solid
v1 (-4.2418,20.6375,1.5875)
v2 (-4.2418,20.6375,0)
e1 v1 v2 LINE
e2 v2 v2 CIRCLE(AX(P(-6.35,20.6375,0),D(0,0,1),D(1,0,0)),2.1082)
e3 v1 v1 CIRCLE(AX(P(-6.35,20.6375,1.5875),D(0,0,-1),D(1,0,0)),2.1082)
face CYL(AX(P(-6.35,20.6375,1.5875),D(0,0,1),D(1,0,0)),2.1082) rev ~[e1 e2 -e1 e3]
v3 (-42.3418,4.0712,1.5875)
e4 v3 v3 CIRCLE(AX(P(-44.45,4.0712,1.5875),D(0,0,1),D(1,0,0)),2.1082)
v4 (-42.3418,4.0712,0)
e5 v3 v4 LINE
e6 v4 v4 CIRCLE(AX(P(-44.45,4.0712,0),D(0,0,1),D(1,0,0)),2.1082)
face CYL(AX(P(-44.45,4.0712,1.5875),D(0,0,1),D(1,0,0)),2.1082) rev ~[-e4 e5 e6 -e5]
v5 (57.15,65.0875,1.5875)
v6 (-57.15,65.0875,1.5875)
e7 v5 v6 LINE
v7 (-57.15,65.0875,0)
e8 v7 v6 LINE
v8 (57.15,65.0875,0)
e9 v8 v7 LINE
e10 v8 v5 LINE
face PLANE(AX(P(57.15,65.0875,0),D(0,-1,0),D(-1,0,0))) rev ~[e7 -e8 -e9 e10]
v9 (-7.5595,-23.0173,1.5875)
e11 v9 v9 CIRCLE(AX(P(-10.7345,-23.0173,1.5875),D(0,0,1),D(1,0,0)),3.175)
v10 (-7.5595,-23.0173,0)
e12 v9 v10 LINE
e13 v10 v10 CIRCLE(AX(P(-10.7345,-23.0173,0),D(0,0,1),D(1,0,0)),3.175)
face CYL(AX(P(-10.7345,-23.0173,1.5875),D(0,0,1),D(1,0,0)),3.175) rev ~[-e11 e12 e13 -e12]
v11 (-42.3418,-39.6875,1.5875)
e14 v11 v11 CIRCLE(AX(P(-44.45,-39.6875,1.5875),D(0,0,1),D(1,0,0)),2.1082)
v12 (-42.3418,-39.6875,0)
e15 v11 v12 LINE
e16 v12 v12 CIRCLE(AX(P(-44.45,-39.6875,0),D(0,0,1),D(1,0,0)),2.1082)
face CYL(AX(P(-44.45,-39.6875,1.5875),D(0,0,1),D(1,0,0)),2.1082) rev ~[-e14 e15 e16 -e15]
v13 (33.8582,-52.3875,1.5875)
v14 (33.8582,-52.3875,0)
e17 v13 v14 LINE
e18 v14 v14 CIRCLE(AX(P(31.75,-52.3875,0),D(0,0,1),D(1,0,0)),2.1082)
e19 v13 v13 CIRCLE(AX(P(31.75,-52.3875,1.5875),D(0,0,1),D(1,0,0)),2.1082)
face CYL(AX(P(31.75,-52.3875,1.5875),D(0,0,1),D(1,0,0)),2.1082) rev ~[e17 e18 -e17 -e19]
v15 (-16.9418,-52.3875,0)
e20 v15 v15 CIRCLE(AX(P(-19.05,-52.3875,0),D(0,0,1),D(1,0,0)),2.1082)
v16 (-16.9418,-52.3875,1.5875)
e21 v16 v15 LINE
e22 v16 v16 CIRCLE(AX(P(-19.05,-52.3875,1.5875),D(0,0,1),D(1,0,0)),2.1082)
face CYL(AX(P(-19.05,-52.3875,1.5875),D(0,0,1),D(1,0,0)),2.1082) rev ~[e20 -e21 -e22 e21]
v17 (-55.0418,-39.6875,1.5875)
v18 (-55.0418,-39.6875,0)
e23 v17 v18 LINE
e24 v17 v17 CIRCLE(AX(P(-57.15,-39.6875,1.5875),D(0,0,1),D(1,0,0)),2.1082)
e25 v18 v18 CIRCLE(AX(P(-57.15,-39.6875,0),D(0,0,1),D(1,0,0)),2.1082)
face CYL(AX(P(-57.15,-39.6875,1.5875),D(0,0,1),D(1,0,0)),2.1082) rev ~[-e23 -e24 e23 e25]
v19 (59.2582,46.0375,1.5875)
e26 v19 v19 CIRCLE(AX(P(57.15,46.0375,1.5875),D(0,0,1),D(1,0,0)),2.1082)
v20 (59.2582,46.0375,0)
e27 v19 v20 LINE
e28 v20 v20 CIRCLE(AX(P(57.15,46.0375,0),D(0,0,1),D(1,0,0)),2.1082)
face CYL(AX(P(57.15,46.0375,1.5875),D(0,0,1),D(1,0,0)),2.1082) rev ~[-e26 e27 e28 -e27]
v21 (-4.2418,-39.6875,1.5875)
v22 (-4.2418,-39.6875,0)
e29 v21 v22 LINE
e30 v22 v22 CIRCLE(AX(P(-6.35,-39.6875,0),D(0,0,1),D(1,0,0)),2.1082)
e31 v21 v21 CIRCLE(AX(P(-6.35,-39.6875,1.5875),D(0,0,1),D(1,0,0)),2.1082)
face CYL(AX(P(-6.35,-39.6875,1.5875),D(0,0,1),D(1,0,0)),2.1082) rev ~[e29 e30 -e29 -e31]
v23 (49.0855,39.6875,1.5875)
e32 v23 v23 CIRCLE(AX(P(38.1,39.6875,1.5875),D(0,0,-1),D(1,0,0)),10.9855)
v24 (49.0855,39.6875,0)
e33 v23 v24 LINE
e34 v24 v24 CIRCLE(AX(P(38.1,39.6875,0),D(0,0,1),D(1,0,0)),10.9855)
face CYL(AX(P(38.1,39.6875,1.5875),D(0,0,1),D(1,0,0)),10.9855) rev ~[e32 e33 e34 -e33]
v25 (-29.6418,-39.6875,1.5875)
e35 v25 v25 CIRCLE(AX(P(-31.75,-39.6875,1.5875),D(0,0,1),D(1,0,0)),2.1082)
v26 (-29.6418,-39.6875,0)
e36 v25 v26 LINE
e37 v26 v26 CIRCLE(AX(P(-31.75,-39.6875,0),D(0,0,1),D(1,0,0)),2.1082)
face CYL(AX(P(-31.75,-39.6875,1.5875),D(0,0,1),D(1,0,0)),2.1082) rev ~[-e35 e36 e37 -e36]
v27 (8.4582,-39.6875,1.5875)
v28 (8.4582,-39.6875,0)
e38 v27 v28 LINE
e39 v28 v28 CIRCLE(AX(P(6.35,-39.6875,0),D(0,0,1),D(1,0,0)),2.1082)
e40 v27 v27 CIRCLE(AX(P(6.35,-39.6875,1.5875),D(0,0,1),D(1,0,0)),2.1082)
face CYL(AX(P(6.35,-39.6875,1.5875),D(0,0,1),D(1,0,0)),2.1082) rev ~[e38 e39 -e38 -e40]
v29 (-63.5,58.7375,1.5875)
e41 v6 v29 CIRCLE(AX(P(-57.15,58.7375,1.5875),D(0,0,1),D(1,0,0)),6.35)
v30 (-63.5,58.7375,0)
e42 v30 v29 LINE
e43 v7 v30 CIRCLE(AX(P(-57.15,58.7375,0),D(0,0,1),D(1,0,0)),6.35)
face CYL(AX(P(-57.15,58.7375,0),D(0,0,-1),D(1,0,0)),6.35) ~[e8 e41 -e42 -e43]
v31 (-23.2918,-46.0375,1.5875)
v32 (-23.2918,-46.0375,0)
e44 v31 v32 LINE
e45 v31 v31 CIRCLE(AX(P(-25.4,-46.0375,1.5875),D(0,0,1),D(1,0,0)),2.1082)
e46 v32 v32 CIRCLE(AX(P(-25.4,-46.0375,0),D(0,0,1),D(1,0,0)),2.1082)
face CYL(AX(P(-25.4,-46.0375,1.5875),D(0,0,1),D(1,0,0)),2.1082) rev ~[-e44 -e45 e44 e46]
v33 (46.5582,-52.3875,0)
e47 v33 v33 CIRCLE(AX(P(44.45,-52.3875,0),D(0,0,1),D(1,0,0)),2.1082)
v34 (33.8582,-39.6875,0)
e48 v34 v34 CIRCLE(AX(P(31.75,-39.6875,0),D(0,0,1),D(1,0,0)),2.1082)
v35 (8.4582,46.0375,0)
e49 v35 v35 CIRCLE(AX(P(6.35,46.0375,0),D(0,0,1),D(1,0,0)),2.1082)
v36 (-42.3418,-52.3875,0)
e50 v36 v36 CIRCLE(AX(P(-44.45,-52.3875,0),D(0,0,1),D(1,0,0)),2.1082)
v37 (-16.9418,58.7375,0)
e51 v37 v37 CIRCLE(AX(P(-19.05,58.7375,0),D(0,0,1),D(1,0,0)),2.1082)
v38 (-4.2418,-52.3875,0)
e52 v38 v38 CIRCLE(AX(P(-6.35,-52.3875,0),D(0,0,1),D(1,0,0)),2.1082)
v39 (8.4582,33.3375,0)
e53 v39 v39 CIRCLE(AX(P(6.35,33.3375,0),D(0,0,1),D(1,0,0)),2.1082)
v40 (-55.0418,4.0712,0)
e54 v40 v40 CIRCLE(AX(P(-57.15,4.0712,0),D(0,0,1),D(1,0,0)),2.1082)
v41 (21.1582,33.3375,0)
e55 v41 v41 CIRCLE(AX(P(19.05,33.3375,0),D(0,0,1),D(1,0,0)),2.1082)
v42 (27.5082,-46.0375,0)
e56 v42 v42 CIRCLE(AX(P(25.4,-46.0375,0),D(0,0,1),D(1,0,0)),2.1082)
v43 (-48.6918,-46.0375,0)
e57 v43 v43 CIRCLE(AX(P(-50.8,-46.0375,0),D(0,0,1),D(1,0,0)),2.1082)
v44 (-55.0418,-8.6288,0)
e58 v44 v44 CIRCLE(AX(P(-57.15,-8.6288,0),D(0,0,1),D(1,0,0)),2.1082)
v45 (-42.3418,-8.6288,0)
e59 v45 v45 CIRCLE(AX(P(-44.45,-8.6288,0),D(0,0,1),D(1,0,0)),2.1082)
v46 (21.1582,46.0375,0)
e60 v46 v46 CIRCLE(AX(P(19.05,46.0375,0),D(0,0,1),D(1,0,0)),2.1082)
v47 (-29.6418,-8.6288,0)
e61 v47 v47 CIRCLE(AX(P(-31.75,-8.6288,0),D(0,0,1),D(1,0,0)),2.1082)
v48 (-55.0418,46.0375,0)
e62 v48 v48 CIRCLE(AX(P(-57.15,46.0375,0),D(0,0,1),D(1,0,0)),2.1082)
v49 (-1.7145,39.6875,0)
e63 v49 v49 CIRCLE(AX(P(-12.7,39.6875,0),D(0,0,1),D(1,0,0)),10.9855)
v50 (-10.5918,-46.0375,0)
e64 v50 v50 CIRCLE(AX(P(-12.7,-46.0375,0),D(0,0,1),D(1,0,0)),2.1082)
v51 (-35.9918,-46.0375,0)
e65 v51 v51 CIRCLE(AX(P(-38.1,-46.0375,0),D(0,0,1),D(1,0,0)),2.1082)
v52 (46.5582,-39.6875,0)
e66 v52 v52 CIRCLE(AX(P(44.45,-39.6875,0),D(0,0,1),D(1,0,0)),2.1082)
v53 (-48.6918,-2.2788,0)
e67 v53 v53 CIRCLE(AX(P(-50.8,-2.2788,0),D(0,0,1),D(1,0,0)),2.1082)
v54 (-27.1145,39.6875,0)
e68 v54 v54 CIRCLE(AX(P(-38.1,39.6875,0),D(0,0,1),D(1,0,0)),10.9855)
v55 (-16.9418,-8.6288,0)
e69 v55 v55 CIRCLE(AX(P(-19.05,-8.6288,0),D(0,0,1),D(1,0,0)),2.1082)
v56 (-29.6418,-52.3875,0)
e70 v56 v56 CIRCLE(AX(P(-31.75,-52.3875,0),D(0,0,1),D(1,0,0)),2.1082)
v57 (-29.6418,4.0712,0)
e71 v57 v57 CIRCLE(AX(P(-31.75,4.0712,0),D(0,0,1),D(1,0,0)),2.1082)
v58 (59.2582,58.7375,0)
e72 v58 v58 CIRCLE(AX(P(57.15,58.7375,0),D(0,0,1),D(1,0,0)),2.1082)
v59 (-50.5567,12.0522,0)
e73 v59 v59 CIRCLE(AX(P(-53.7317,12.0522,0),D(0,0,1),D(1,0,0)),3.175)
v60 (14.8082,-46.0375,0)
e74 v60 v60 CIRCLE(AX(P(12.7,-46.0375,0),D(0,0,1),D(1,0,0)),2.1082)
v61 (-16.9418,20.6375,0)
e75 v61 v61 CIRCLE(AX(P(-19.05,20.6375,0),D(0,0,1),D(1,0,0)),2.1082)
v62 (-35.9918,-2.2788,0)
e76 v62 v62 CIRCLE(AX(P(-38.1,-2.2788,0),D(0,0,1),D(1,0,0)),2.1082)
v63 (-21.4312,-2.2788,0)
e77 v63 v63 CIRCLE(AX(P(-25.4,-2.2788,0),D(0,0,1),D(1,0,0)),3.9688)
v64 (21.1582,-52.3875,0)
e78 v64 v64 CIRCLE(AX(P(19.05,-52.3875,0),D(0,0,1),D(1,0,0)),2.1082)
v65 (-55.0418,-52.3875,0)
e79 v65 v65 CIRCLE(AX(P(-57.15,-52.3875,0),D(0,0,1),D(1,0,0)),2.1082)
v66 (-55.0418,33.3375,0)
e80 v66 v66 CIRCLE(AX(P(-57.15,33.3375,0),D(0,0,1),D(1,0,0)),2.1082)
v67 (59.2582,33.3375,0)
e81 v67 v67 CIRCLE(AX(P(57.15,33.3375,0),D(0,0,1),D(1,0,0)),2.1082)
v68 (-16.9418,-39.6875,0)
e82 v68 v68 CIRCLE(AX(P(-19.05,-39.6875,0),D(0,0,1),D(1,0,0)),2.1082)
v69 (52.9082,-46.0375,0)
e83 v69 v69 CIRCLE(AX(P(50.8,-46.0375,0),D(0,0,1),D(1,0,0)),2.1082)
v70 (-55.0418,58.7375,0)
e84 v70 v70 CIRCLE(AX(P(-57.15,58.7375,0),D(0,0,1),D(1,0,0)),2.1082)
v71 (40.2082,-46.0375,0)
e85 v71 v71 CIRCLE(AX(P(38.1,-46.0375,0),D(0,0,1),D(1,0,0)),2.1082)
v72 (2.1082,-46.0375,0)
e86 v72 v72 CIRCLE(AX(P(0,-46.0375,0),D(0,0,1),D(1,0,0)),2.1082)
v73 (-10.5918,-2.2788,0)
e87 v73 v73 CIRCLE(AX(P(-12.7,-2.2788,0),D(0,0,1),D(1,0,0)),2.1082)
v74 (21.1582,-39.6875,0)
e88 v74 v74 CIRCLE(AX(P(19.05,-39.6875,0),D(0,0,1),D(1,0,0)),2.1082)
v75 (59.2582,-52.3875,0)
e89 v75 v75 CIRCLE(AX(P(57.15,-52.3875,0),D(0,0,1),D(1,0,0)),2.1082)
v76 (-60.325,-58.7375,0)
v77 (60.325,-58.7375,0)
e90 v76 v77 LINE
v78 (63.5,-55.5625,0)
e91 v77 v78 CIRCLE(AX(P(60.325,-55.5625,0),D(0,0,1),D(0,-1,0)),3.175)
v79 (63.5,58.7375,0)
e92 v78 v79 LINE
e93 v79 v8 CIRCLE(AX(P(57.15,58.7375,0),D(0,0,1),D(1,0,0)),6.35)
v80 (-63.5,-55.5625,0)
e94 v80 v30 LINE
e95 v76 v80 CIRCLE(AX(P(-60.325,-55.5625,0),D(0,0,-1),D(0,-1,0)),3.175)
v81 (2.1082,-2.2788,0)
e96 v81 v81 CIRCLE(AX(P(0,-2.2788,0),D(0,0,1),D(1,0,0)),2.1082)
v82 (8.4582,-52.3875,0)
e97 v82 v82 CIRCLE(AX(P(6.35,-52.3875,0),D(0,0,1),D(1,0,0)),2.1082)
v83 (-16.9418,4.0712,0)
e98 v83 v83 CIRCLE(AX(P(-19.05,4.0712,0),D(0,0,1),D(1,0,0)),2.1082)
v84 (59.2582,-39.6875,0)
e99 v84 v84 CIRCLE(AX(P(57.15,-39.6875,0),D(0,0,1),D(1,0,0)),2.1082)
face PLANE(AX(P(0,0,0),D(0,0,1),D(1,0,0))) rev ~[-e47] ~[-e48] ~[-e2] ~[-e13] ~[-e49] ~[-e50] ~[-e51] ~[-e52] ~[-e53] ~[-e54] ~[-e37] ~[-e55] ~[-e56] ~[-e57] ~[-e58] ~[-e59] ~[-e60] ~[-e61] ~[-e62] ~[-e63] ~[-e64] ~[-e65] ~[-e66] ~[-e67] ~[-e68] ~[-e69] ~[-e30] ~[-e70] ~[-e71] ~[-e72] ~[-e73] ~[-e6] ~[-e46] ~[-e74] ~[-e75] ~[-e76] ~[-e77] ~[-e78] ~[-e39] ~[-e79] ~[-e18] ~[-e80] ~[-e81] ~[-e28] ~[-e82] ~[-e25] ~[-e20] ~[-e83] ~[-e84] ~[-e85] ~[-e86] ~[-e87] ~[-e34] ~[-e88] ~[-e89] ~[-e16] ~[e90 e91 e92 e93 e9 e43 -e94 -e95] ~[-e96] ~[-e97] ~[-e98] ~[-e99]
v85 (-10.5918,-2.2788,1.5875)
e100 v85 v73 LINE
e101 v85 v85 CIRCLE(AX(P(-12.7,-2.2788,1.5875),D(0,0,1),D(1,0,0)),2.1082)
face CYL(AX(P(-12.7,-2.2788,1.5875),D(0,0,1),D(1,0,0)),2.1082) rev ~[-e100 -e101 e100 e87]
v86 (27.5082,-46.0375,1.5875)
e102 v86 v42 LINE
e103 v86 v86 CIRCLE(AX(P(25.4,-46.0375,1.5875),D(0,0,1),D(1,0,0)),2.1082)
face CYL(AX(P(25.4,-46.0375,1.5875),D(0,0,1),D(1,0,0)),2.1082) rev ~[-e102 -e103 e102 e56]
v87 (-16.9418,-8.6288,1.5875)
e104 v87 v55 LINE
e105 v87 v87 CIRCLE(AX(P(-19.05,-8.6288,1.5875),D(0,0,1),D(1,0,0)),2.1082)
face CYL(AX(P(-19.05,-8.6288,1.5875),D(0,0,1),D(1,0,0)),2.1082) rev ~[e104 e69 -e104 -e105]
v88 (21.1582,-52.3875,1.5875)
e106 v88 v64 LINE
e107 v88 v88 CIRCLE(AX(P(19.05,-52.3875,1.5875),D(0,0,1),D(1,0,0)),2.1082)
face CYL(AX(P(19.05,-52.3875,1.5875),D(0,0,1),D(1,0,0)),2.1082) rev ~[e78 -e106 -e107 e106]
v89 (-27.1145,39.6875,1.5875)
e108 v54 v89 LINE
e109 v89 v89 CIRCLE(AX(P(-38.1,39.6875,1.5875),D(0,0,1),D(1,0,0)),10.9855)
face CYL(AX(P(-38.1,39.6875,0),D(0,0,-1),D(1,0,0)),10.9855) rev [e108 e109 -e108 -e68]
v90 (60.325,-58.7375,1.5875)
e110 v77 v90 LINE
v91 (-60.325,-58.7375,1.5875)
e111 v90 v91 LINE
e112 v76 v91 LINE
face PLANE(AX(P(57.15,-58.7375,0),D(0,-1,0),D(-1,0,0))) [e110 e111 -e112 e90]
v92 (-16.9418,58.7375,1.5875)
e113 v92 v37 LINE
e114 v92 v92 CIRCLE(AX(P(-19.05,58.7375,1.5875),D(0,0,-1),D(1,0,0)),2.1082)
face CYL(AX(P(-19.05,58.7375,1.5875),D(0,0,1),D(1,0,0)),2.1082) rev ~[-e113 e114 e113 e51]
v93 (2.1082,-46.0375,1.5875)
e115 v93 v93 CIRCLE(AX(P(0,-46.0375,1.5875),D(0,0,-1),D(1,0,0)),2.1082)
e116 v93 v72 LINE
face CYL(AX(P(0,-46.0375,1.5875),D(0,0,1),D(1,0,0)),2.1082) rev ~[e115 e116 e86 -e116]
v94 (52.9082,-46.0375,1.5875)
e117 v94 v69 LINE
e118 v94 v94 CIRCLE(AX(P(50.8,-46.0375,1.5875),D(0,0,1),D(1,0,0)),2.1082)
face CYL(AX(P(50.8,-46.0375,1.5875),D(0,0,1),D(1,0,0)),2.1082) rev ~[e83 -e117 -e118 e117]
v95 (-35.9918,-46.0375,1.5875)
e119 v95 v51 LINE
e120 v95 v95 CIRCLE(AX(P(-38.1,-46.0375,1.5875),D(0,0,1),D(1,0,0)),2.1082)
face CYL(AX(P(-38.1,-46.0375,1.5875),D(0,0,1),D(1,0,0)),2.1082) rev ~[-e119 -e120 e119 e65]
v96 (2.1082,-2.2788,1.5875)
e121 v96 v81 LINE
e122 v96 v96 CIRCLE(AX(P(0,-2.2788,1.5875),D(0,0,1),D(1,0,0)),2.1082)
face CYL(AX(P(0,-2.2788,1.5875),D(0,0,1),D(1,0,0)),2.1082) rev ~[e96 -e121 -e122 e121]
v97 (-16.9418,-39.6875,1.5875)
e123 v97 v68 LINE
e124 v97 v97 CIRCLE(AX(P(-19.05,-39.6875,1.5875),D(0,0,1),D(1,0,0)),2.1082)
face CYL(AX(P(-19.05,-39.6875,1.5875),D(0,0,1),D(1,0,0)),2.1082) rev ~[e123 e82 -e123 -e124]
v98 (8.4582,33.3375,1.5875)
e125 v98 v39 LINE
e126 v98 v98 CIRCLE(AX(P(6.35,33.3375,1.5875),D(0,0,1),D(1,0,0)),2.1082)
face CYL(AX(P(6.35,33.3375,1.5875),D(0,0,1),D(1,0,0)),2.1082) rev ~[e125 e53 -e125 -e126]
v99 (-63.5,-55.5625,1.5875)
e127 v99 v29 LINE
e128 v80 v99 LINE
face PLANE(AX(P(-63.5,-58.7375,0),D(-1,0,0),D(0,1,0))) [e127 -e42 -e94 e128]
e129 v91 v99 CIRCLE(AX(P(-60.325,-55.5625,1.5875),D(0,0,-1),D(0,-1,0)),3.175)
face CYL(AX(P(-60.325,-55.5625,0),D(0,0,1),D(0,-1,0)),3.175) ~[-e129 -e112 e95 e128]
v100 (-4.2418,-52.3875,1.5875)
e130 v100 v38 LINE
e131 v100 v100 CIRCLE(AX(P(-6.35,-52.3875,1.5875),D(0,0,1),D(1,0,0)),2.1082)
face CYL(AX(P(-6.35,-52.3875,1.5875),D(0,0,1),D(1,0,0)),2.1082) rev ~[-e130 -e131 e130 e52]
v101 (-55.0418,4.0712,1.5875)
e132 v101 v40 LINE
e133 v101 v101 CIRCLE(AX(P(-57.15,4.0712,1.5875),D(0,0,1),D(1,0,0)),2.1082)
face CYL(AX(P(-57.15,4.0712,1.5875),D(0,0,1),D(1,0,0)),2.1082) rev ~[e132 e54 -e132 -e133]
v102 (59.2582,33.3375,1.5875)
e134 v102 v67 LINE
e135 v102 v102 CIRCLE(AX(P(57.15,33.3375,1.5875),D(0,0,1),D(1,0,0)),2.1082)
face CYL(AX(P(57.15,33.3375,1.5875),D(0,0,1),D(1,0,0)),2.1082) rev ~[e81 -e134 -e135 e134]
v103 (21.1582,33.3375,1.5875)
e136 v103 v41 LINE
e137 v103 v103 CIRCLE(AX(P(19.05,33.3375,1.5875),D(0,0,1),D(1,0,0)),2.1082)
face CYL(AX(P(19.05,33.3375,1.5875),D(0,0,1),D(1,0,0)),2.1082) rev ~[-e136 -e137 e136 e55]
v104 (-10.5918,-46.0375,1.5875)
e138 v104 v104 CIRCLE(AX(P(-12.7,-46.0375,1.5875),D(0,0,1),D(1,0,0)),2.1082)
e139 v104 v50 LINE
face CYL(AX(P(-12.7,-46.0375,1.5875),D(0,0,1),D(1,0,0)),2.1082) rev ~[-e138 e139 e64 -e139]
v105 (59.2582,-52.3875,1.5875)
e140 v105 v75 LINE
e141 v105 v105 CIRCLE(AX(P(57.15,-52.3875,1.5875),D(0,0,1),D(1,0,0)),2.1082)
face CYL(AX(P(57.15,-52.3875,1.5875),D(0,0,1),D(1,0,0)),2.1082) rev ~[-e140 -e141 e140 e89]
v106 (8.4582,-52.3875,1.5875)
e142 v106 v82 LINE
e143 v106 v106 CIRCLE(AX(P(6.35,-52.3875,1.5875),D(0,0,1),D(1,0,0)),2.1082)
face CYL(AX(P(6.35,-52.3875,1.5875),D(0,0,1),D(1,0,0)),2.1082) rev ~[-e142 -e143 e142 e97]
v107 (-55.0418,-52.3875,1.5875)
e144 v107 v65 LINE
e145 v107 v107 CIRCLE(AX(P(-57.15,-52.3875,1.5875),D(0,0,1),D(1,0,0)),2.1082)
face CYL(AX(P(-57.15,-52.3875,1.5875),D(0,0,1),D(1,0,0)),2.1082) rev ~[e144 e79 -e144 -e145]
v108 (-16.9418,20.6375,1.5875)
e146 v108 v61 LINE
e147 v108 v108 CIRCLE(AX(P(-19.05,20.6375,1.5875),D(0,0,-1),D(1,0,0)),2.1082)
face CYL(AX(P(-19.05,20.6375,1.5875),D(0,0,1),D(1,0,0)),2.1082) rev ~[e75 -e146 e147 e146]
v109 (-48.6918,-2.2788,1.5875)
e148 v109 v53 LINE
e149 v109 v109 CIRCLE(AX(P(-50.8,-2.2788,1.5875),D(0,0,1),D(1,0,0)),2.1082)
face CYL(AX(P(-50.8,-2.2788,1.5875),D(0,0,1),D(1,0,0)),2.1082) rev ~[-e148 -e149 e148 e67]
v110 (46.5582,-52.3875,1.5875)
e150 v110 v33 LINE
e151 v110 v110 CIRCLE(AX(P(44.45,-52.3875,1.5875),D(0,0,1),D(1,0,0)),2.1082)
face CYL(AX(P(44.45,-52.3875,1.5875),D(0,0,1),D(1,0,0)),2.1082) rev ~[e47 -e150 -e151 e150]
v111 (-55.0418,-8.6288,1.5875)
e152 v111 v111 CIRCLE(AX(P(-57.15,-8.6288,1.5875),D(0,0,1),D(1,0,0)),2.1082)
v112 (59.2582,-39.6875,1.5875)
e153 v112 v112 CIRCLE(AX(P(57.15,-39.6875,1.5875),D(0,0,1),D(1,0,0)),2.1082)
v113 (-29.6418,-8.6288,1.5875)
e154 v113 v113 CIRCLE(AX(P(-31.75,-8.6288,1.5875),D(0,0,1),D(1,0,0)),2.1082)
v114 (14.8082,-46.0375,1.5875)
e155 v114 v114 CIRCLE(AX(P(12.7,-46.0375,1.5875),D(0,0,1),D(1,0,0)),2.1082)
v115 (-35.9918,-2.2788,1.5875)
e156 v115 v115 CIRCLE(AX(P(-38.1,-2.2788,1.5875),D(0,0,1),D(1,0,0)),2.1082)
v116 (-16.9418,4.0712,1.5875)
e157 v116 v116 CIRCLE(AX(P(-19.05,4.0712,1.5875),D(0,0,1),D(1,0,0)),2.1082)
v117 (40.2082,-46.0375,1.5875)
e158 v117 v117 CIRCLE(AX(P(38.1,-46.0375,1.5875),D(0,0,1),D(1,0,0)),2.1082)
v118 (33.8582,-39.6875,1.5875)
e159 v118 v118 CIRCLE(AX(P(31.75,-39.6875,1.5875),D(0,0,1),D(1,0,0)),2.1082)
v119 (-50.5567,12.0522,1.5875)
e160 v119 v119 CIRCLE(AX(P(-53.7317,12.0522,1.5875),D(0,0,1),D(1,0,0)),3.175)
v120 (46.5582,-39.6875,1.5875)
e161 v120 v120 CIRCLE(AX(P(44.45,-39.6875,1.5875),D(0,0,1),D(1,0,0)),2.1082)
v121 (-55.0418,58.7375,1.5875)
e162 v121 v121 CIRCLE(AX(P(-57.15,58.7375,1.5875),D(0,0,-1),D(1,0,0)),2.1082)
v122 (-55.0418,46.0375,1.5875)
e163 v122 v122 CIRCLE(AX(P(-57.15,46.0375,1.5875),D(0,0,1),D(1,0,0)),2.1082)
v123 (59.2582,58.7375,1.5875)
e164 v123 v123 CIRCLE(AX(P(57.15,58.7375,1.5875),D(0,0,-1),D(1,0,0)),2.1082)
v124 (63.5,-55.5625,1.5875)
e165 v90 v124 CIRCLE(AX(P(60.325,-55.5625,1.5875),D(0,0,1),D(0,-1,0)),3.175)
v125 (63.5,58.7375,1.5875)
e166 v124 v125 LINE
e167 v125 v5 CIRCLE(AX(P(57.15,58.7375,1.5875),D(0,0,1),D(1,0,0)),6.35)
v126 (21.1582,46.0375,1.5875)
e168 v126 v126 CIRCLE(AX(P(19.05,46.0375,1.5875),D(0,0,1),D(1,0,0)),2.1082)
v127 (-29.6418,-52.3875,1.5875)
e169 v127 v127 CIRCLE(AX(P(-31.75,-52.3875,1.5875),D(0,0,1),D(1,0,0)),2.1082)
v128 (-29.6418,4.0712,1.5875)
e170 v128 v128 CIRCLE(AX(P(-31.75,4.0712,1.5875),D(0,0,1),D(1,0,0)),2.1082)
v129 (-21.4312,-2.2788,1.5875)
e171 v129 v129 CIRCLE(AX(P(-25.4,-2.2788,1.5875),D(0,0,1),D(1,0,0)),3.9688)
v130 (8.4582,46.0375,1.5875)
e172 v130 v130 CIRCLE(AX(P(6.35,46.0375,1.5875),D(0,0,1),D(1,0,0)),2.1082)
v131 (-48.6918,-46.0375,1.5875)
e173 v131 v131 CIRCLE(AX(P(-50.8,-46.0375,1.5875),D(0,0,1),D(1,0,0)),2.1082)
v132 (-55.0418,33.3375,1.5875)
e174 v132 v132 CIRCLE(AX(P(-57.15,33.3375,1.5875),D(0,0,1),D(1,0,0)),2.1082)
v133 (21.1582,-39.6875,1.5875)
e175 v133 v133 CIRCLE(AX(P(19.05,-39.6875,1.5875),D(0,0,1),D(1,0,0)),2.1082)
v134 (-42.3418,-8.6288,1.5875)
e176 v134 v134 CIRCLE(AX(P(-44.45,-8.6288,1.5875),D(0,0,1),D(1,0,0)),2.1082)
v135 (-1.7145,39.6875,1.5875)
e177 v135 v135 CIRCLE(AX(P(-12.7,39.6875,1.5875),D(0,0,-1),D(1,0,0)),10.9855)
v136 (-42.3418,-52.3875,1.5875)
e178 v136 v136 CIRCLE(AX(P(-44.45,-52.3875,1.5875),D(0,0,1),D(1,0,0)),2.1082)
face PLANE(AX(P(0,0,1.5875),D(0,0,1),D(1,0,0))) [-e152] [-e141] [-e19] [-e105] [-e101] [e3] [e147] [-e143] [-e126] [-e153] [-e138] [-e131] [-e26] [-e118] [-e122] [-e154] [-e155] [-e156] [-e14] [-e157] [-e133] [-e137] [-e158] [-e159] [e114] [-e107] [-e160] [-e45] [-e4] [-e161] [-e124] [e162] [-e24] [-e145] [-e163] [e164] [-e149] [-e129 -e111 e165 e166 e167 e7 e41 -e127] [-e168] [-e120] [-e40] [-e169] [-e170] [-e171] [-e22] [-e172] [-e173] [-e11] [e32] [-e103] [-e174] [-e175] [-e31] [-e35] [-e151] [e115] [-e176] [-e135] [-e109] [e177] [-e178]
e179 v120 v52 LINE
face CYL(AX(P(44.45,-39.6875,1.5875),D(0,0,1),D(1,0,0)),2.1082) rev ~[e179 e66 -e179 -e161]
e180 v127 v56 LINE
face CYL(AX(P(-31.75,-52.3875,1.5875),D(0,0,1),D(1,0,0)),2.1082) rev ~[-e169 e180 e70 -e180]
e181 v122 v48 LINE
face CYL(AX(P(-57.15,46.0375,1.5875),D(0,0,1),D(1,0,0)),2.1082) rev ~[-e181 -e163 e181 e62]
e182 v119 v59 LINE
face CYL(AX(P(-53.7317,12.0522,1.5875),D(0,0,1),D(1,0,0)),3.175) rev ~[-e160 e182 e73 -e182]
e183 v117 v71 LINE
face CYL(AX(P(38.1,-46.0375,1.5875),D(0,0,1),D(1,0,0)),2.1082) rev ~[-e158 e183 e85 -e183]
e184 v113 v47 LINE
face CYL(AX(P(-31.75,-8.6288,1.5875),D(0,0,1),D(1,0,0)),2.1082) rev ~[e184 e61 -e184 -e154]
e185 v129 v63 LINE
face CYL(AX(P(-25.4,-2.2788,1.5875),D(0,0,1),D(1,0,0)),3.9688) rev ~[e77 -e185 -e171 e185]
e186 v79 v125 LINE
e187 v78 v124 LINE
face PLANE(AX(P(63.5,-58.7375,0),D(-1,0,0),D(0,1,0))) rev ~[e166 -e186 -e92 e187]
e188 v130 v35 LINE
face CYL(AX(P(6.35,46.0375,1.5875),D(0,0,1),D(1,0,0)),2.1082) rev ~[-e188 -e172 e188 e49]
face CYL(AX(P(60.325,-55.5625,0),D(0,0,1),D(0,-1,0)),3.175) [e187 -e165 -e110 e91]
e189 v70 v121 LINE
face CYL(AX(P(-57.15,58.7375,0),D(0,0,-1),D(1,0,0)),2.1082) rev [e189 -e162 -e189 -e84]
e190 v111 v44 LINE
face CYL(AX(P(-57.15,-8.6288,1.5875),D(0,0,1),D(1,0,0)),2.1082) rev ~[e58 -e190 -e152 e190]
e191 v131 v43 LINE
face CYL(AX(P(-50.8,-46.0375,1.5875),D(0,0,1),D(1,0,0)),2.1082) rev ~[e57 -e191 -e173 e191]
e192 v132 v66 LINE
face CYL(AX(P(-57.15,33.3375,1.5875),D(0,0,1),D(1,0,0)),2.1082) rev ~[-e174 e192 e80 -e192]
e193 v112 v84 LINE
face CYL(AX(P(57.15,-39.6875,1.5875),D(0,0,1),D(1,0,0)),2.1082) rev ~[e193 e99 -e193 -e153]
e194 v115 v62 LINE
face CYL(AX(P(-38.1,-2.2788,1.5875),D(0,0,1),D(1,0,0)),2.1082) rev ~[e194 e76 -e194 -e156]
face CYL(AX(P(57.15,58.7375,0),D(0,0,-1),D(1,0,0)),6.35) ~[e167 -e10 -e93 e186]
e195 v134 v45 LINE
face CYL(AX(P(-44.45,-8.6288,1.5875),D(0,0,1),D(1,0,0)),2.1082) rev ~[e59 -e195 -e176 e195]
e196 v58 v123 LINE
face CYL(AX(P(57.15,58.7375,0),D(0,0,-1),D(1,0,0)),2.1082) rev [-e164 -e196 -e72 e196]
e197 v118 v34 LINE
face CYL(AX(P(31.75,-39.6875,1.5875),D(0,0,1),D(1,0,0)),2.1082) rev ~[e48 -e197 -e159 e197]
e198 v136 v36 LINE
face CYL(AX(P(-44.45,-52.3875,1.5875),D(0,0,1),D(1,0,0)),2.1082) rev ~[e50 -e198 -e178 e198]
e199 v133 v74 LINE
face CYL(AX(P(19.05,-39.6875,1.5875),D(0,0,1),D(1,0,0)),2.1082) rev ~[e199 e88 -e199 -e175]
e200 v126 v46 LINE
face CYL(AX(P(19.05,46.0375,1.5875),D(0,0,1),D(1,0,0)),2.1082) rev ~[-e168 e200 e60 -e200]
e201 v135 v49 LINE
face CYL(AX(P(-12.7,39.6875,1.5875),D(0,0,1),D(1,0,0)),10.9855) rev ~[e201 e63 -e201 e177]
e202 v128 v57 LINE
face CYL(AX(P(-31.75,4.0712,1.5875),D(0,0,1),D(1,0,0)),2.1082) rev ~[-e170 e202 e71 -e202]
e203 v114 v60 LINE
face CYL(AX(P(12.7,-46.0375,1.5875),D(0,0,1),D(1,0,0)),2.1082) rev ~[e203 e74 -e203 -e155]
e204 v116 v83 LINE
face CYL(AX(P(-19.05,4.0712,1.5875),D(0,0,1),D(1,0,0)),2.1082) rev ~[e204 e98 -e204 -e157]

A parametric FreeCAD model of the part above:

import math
import FreeCAD as App
import Part
import Sketcher
from FreeCAD import Vector
Q = App.Units.Quantity


def edges_at(feature, points):
    """Names of the edges that pass closest to the given points."""
    edges = feature.Shape.Edges
    near = lambda p: min(range(len(edges)), key=lambda i: edges[i].distToShape(Part.Vertex(*p))[0])
    return sorted({f"Edge{near(p) + 1}" for p in points})

doc = App.newDocument("Part")
body = doc.addObject("PartDesign::Body", "Body")

sketch1 = doc.addObject("Sketcher::SketchObject", "Sketch")
body.addObject(sketch1)
sketch1.AttachmentSupport = (doc.XY_Plane, [""])
sketch1.MapMode = "FlatFace"
sketch1.addGeometry(Part.LineSegment(Vector(63.5, -58.7375, 0), Vector(63.5, 58.7375, 0)), False)
sketch1.addGeometry(Part.ArcOfCircle(Part.Circle(Vector(57.15, 58.7375, 0), Vector(0, 0, 1), 6.35), math.radians(0), math.radians(90)), False)
sketch1.addGeometry(Part.LineSegment(Vector(57.15, 65.0875, 0), Vector(-57.15, 65.0875, 0)), False)
sketch1.addGeometry(Part.ArcOfCircle(Part.Circle(Vector(-57.15, 58.7375, 0), Vector(0, 0, 1), 6.35), math.radians(90), math.radians(180)), False)
sketch1.addGeometry(Part.LineSegment(Vector(-63.5, 58.7375, 0), Vector(-63.5, -58.7375, 0)), False)
sketch1.addGeometry(Part.LineSegment(Vector(-63.5, -58.7375, 0), Vector(63.5, -58.7375, 0)), False)
sketch1.addGeometry(Part.Circle(Vector(57.15, 58.7375, 0), Vector(0, 0, 1), 2.1082), False)
sketch1.addGeometry(Part.Circle(Vector(-57.15, 58.7375, 0), Vector(0, 0, 1), 2.1082), False)
sketch1.addGeometry(Part.Circle(Vector(-38.1, 39.6875, 0), Vector(0, 0, 1), 10.9855), False)
sketch1.addConstraint(Sketcher.Constraint("Tangent", 0, 2, 1, 1))
sketch1.addConstraint(Sketcher.Constraint("Tangent", 1, 2, 2, 1))
sketch1.addConstraint(Sketcher.Constraint("Tangent", 2, 2, 3, 1))
sketch1.addConstraint(Sketcher.Constraint("Tangent", 3, 2, 4, 1))
sketch1.addConstraint(Sketcher.Constraint("Coincident", 4, 2, 5, 1))
sketch1.addConstraint(Sketcher.Constraint("Coincident", 5, 2, 0, 1))
sketch1.addConstraint(Sketcher.Constraint("Vertical", 0))
sketch1.addConstraint(Sketcher.Constraint("Horizontal", 2))
sketch1.addConstraint(Sketcher.Constraint("Vertical", 4))
sketch1.addConstraint(Sketcher.Constraint("Horizontal", 5))
sketch1.addConstraint(Sketcher.Constraint("Coincident", 6, 3, 1, 3))
sketch1.addConstraint(Sketcher.Constraint("Coincident", 7, 3, 3, 3))
sketch1.addConstraint(Sketcher.Constraint("Equal", 1, 3))
sketch1.addConstraint(Sketcher.Constraint("Equal", 6, 7))
sketch1.addConstraint(Sketcher.Constraint("Symmetric", 0, 2, 4, 2, -1, 1))
sketch1.addConstraint(Sketcher.Constraint("Radius", 1, Q("0.25 in")))
sketch1.addConstraint(Sketcher.Constraint("Diameter", 6, Q("0.166 in")))
sketch1.addConstraint(Sketcher.Constraint("Diameter", 8, Q("0.865 in")))
sketch1.addConstraint(Sketcher.Constraint("DistanceX", 2, 2, 2, 1, Q("4.5 in")))
sketch1.addConstraint(Sketcher.Constraint("DistanceX", 8, 3, -1, 1, Q("1.5 in")))
sketch1.addConstraint(Sketcher.Constraint("DistanceY", 0, 1, 0, 2, Q("4.625 in")))
sketch1.addConstraint(Sketcher.Constraint("DistanceY", 8, 3, 1, 2, Q("1 in")))
pad1 = doc.addObject("PartDesign::Pad", "Pad")
body.addObject(pad1)
pad1.Profile = sketch1
pad1.Length = Q("0.0625 in")

sketch2 = doc.addObject("Sketcher::SketchObject", "Sketch001")
body.addObject(sketch2)
sketch2.AttachmentSupport = (doc.XY_Plane, [""])
sketch2.MapMode = "FlatFace"
sketch2.AttachmentOffset = App.Placement(Vector(0, 0, 0.0625 * 25.4), App.Rotation())
sketch2.addGeometry(Part.Circle(Vector(-12.7, 39.6875, 0), Vector(0, 0, 1), 10.9855), False)
sketch2.addGeometry(Part.Circle(Vector(38.1, 39.6875, 0), Vector(0, 0, 1), 10.9855), False)
sketch2.addGeometry(Part.Circle(Vector(0, -46.0375, 0), Vector(0, 0, 1), 2.1082), False)
sketch2.addConstraint(Sketcher.Constraint("Equal", 0, 1))
sketch2.addConstraint(Sketcher.Constraint("PointOnObject", 2, 3, -2))
sketch2.addConstraint(Sketcher.Constraint("Horizontal", 0, 3, 1, 3))
sketch2.addConstraint(Sketcher.Constraint("Diameter", 0, Q("0.865 in")))
sketch2.addConstraint(Sketcher.Constraint("Diameter", 2, Q("0.166 in")))
sketch2.addConstraint(Sketcher.Constraint("DistanceX", 0, 3, -1, 1, Q("0.5 in")))
sketch2.addConstraint(Sketcher.Constraint("DistanceX", -1, 1, 1, 3, Q("1.5 in")))
sketch2.addConstraint(Sketcher.Constraint("DistanceY", -1, 1, 0, 3, Q("1.5625 in")))
sketch2.addConstraint(Sketcher.Constraint("DistanceY", 2, 3, -1, 1, Q("1.8125 in")))
pocket1 = doc.addObject("PartDesign::Pocket", "Pocket")
body.addObject(pocket1)
pocket1.Profile = sketch2
pocket1.Length = Q("0.0625 in")

sketch3 = doc.addObject("Sketcher::SketchObject", "Sketch002")
body.addObject(sketch3)
sketch3.AttachmentSupport = (doc.XY_Plane, [""])
sketch3.MapMode = "FlatFace"
sketch3.AttachmentOffset = App.Placement(Vector(0, 0, 0.0625 * 25.4), App.Rotation())
sketch3.addGeometry(Part.Circle(Vector(-53.7317, 12.0522, 0), Vector(0, 0, 1), 3.175), False)
sketch3.addGeometry(Part.Circle(Vector(-25.4, -2.2788, 0), Vector(0, 0, 1), 3.9688), False)
sketch3.addGeometry(Part.Circle(Vector(-10.7345, -23.0173, 0), Vector(0, 0, 1), 3.175), False)
sketch3.addConstraint(Sketcher.Constraint("Equal", 0, 2))
sketch3.addConstraint(Sketcher.Constraint("Diameter", 0, Q("0.25 in")))
sketch3.addConstraint(Sketcher.Constraint("Diameter", 1, Q("0.3125 in")))
sketch3.addConstraint(Sketcher.Constraint("DistanceX", 1, 3, -1, 1, Q("1 in")))
sketch3.addConstraint(Sketcher.Constraint("DistanceY", -1, 1, 0, 3, Q("0.4745 in")))
sketch3.addConstraint(Sketcher.Constraint("DistanceY", 2, 3, -1, 1, Q("0.9062 in")))
sketch3.addConstraint(Sketcher.Constraint("DistanceX", 0, 3, 2, 3, Q("1.6928 in")))
sketch3.addConstraint(Sketcher.Constraint("DistanceX", 0, 3, -1, 1, 53.7317))
sketch3.addConstraint(Sketcher.Constraint("DistanceY", 1, 3, -1, 1, 2.2788))
pocket2 = doc.addObject("PartDesign::Pocket", "Pocket001")
body.addObject(pocket2)
pocket2.Profile = sketch3
pocket2.Length = Q("1 in")

sketch4 = doc.addObject("Sketcher::SketchObject", "Sketch003")
body.addObject(sketch4)
sketch4.AttachmentSupport = (doc.XY_Plane, [""])
sketch4.MapMode = "FlatFace"
sketch4.AttachmentOffset = App.Placement(Vector(0, 0, 0.0625 * 25.4), App.Rotation())
sketch4.addGeometry(Part.Circle(Vector(57.15, -52.3875, 0), Vector(0, 0, 1), 2.1082), False)
sketch4.addGeometry(Part.Circle(Vector(0, -46.0375, 0), Vector(0, 0, 1), 2.1082), False)
sketch4.addGeometry(Part.Circle(Vector(44.45, -52.3875, 0), Vector(0, 0, 1), 2.1082), False)
sketch4.addGeometry(Part.Circle(Vector(31.75, -52.3875, 0), Vector(0, 0, 1), 2.1082), False)
sketch4.addGeometry(Part.Circle(Vector(19.05, -52.3875, 0), Vector(0, 0, 1), 2.1082), False)
sketch4.addGeometry(Part.Circle(Vector(6.35, -52.3875, 0), Vector(0, 0, 1), 2.1082), False)
sketch4.addGeometry(Part.Circle(Vector(-6.35, -52.3875, 0), Vector(0, 0, 1), 2.1082), False)
sketch4.addGeometry(Part.Circle(Vector(-19.05, -52.3875, 0), Vector(0, 0, 1), 2.1082), False)
sketch4.addGeometry(Part.Circle(Vector(-31.75, -52.3875, 0), Vector(0, 0, 1), 2.1082), False)
sketch4.addGeometry(Part.Circle(Vector(-44.45, -52.3875, 0), Vector(0, 0, 1), 2.1082), False)
sketch4.addGeometry(Part.Circle(Vector(-57.15, -52.3875, 0), Vector(0, 0, 1), 2.1082), False)
sketch4.addGeometry(Part.Circle(Vector(57.15, -39.6875, 0), Vector(0, 0, 1), 2.1082), False)
sketch4.addGeometry(Part.Circle(Vector(44.45, -39.6875, 0), Vector(0, 0, 1), 2.1082), False)
sketch4.addGeometry(Part.Circle(Vector(31.75, -39.6875, 0), Vector(0, 0, 1), 2.1082), False)
sketch4.addGeometry(Part.Circle(Vector(19.05, -39.6875, 0), Vector(0, 0, 1), 2.1082), False)
sketch4.addGeometry(Part.Circle(Vector(6.35, -39.6875, 0), Vector(0, 0, 1), 2.1082), False)
sketch4.addGeometry(Part.Circle(Vector(-6.35, -39.6875, 0), Vector(0, 0, 1), 2.1082), False)
sketch4.addGeometry(Part.Circle(Vector(-19.05, -39.6875, 0), Vector(0, 0, 1), 2.1082), False)
sketch4.addGeometry(Part.Circle(Vector(-31.75, -39.6875, 0), Vector(0, 0, 1), 2.1082), False)
sketch4.addGeometry(Part.Circle(Vector(-44.45, -39.6875, 0), Vector(0, 0, 1), 2.1082), False)
sketch4.addGeometry(Part.Circle(Vector(-57.15, -39.6875, 0), Vector(0, 0, 1), 2.1082), False)
sketch4.addConstraint(Sketcher.Constraint("Equal", 0, 1))
sketch4.addConstraint(Sketcher.Constraint("Equal", 1, 2))
sketch4.addConstraint(Sketcher.Constraint("Equal", 2, 3))
sketch4.addConstraint(Sketcher.Constraint("Equal", 3, 4))
sketch4.addConstraint(Sketcher.Constraint("Equal", 4, 5))
sketch4.addConstraint(Sketcher.Constraint("Equal", 5, 6))
sketch4.addConstraint(Sketcher.Constraint("Equal", 6, 7))
sketch4.addConstraint(Sketcher.Constraint("Equal", 7, 8))
sketch4.addConstraint(Sketcher.Constraint("Equal", 8, 9))
sketch4.addConstraint(Sketcher.Constraint("Equal", 9, 10))
sketch4.addConstraint(Sketcher.Constraint("Equal", 10, 11))
sketch4.addConstraint(Sketcher.Constraint("Equal", 11, 12))
sketch4.addConstraint(Sketcher.Constraint("Equal", 12, 13))
sketch4.addConstraint(Sketcher.Constraint("Equal", 13, 14))
sketch4.addConstraint(Sketcher.Constraint("Equal", 14, 15))
sketch4.addConstraint(Sketcher.Constraint("Equal", 15, 16))
sketch4.addConstraint(Sketcher.Constraint("Equal", 16, 17))
sketch4.addConstraint(Sketcher.Constraint("Equal", 17, 18))
sketch4.addConstraint(Sketcher.Constraint("Equal", 18, 19))
sketch4.addConstraint(Sketcher.Constraint("Equal", 19, 20))
sketch4.addConstraint(Sketcher.Constraint("Symmetric", 5, 3, 6, 3, -2))
sketch4.addConstraint(Sketcher.Constraint("Symmetric", 4, 3, 7, 3, -2))
sketch4.addConstraint(Sketcher.Constraint("Symmetric", 3, 3, 8, 3, -2))
sketch4.addConstraint(Sketcher.Constraint("Symmetric", 2, 3, 9, 3, -2))
sketch4.addConstraint(Sketcher.Constraint("Symmetric", 0, 3, 10, 3, -2))
sketch4.addConstraint(Sketcher.Constraint("Symmetric", 15, 3, 16, 3, -2))
sketch4.addConstraint(Sketcher.Constraint("Symmetric", 14, 3, 17, 3, -2))
sketch4.addConstraint(Sketcher.Constraint("Symmetric", 13, 3, 18, 3, -2))
sketch4.addConstraint(Sketcher.Constraint("Symmetric", 12, 3, 19, 3, -2))
sketch4.addConstraint(Sketcher.Constraint("Symmetric", 11, 3, 20, 3, -2))
sketch4.addConstraint(Sketcher.Constraint("PointOnObject", 1, 3, -2))
sketch4.addConstraint(Sketcher.Constraint("Horizontal", 0, 3, 2, 3))
sketch4.addConstraint(Sketcher.Constraint("Horizontal", 2, 3, 3, 3))
sketch4.addConstraint(Sketcher.Constraint("Horizontal", 3, 3, 4, 3))
sketch4.addConstraint(Sketcher.Constraint("Horizontal", 4, 3, 5, 3))
sketch4.addConstraint(Sketcher.Constraint("Horizontal", 11, 3, 12, 3))
sketch4.addConstraint(Sketcher.Constraint("Horizontal", 12, 3, 13, 3))
sketch4.addConstraint(Sketcher.Constraint("Horizontal", 13, 3, 14, 3))
sketch4.addConstraint(Sketcher.Constraint("Horizontal", 14, 3, 15, 3))
sketch4.addConstraint(Sketcher.Constraint("Vertical", 0, 3, 11, 3))
sketch4.addConstraint(Sketcher.Constraint("Vertical", 2, 3, 12, 3))
sketch4.addConstraint(Sketcher.Constraint("Vertical", 3, 3, 13, 3))
sketch4.addConstraint(Sketcher.Constraint("Vertical", 4, 3, 14, 3))
sketch4.addConstraint(Sketcher.Constraint("Vertical", 5, 3, 15, 3))
sketch4.addConstraint(Sketcher.Constraint("Diameter", 0, Q("0.166 in")))
sketch4.addConstraint(Sketcher.Constraint("DistanceX", 2, 3, 0, 3, Q("0.5 in")))
sketch4.addConstraint(Sketcher.Constraint("DistanceX", 3, 3, 2, 3, Q("0.5 in")))
sketch4.addConstraint(Sketcher.Constraint("DistanceX", 4, 3, 3, 3, Q("0.5 in")))
sketch4.addConstraint(Sketcher.Constraint("DistanceX", 5, 3, 4, 3, Q("0.5 in")))
sketch4.addConstraint(Sketcher.Constraint("DistanceX", 6, 3, 5, 3, Q("0.5 in")))
sketch4.addConstraint(Sketcher.Constraint("DistanceY", 0, 3, 11, 3, Q("0.5 in")))
sketch4.addConstraint(Sketcher.Constraint("DistanceY", 0, 3, 1, 3, Q("0.25 in")))
sketch4.addConstraint(Sketcher.Constraint("DistanceY", 0, 3, -1, 1, Q("2.0625 in")))
pocket3 = doc.addObject("PartDesign::Pocket", "Pocket002")
body.addObject(pocket3)
pocket3.Profile = sketch4
pocket3.Length = Q("1 in")

sketch5 = doc.addObject("Sketcher::SketchObject", "Sketch004")
body.addObject(sketch5)
sketch5.AttachmentSupport = (doc.XY_Plane, [""])
sketch5.MapMode = "FlatFace"
sketch5.AttachmentOffset = App.Placement(Vector(0, 0, 0.0625 * 25.4), App.Rotation())
sketch5.addGeometry(Part.Circle(Vector(-25.4, -2.2788, 0), Vector(0, 0, 1), 3.9687), False)
sketch5.addGeometry(Part.Circle(Vector(-57.15, -8.6288, 0), Vector(0, 0, 1), 2.1082), False)
sketch5.addGeometry(Part.Circle(Vector(-57.15, 4.0712, 0), Vector(0, 0, 1), 2.1082), False)
sketch5.addGeometry(Part.Circle(Vector(-44.45, -8.6288, 0), Vector(0, 0, 1), 2.1082), False)
sketch5.addGeometry(Part.Circle(Vector(-44.45, 4.0712, 0), Vector(0, 0, 1), 2.1082), False)
sketch5.addGeometry(Part.Circle(Vector(-31.75, -8.6288, 0), Vector(0, 0, 1), 2.1082), False)
sketch5.addGeometry(Part.Circle(Vector(-31.75, 4.0712, 0), Vector(0, 0, 1), 2.1082), False)
sketch5.addGeometry(Part.Circle(Vector(-19.05, -8.6288, 0), Vector(0, 0, 1), 2.1082), False)
sketch5.addGeometry(Part.Circle(Vector(-19.05, 4.0712, 0), Vector(0, 0, 1), 2.1082), False)
sketch5.addConstraint(Sketcher.Constraint("Equal", 1, 2))
sketch5.addConstraint(Sketcher.Constraint("Equal", 2, 3))
sketch5.addConstraint(Sketcher.Constraint("Equal", 3, 4))
sketch5.addConstraint(Sketcher.Constraint("Equal", 4, 5))
sketch5.addConstraint(Sketcher.Constraint("Equal", 5, 6))
sketch5.addConstraint(Sketcher.Constraint("Equal", 6, 7))
sketch5.addConstraint(Sketcher.Constraint("Equal", 7, 8))
sketch5.addConstraint(Sketcher.Constraint("Horizontal", 1, 3, 3, 3))
sketch5.addConstraint(Sketcher.Constraint("Horizontal", 2, 3, 4, 3))
sketch5.addConstraint(Sketcher.Constraint("Horizontal", 3, 3, 5, 3))
sketch5.addConstraint(Sketcher.Constraint("Horizontal", 4, 3, 6, 3))
sketch5.addConstraint(Sketcher.Constraint("Horizontal", 5, 3, 7, 3))
sketch5.addConstraint(Sketcher.Constraint("Horizontal", 6, 3, 8, 3))
sketch5.addConstraint(Sketcher.Constraint("Vertical", 1, 3, 2, 3))
sketch5.addConstraint(Sketcher.Constraint("Vertical", 3, 3, 4, 3))
sketch5.addConstraint(Sketcher.Constraint("Vertical", 5, 3, 6, 3))
sketch5.addConstraint(Sketcher.Constraint("Vertical", 7, 3, 8, 3))
sketch5.addConstraint(Sketcher.Constraint("Diameter", 1, Q("0.166 in")))
sketch5.addConstraint(Sketcher.Constraint("DistanceY", 1, 3, 2, 3, Q("0.5 in")))
sketch5.addConstraint(Sketcher.Constraint("DistanceX", 1, 3, 3, 3, Q("0.5 in")))
sketch5.addConstraint(Sketcher.Constraint("DistanceX", 3, 3, 5, 3, Q("0.5 in")))
sketch5.addConstraint(Sketcher.Constraint("DistanceX", 5, 3, 7, 3, Q("0.5 in")))
sketch5.addConstraint(Sketcher.Constraint("DistanceX", 5, 3, -1, 1, Q("1.25 in")))
sketch5.addConstraint(Sketcher.Constraint("DistanceX", 1, 3, 0, 3, Q("1.25 in")))
sketch5.addConstraint(Sketcher.Constraint("DistanceY", 1, 3, 0, 3, Q("0.25 in")))
sketch5.addConstraint(Sketcher.Constraint("Diameter", 0, Q("0.3125 in")))
sketch5.addConstraint(Sketcher.Constraint("DistanceY", 0, 3, -1, 1, 2.2788))
pocket4 = doc.addObject("PartDesign::Pocket", "Pocket003")
body.addObject(pocket4)
pocket4.Profile = sketch5
pocket4.Length = Q("1 in")

sketch6 = doc.addObject("Sketcher::SketchObject", "Sketch005")
body.addObject(sketch6)
sketch6.AttachmentSupport = (doc.XY_Plane, [""])
sketch6.MapMode = "FlatFace"
sketch6.AttachmentOffset = App.Placement(Vector(0, 0, 0.0625 * 25.4), App.Rotation())
sketch6.addGeometry(Part.Circle(Vector(-57.15, 33.3375, 0), Vector(0, 0, 1), 2.1082), False)
sketch6.addGeometry(Part.Circle(Vector(-57.15, 46.0375, 0), Vector(0, 0, 1), 2.1082), False)
sketch6.addGeometry(Part.Circle(Vector(6.35, 33.3375, 0), Vector(0, 0, 1), 2.1082), False)
sketch6.addGeometry(Part.Circle(Vector(6.35, 46.0375, 0), Vector(0, 0, 1), 2.1082), False)
sketch6.addGeometry(Part.Circle(Vector(19.05, 33.3375, 0), Vector(0, 0, 1), 2.1082), False)
sketch6.addGeometry(Part.Circle(Vector(19.05, 46.0375, 0), Vector(0, 0, 1), 2.1082), False)
sketch6.addGeometry(Part.Circle(Vector(57.15, 33.3375, 0), Vector(0, 0, 1), 2.1082), False)
sketch6.addGeometry(Part.Circle(Vector(57.15, 46.0375, 0), Vector(0, 0, 1), 2.1082), False)
sketch6.addConstraint(Sketcher.Constraint("Equal", 0, 1))
sketch6.addConstraint(Sketcher.Constraint("Equal", 1, 2))
sketch6.addConstraint(Sketcher.Constraint("Equal", 2, 3))
sketch6.addConstraint(Sketcher.Constraint("Equal", 3, 4))
sketch6.addConstraint(Sketcher.Constraint("Equal", 4, 5))
sketch6.addConstraint(Sketcher.Constraint("Equal", 5, 6))
sketch6.addConstraint(Sketcher.Constraint("Equal", 6, 7))
sketch6.addConstraint(Sketcher.Constraint("Symmetric", 0, 3, 6, 3, -2))
sketch6.addConstraint(Sketcher.Constraint("Symmetric", 1, 3, 7, 3, -2))
sketch6.addConstraint(Sketcher.Constraint("Horizontal", 0, 3, 2, 3))
sketch6.addConstraint(Sketcher.Constraint("Horizontal", 1, 3, 3, 3))
sketch6.addConstraint(Sketcher.Constraint("Horizontal", 2, 3, 4, 3))
sketch6.addConstraint(Sketcher.Constraint("Horizontal", 3, 3, 5, 3))
sketch6.addConstraint(Sketcher.Constraint("Vertical", 0, 3, 1, 3))
sketch6.addConstraint(Sketcher.Constraint("Vertical", 2, 3, 3, 3))
sketch6.addConstraint(Sketcher.Constraint("Vertical", 4, 3, 5, 3))
sketch6.addConstraint(Sketcher.Constraint("Diameter", 0, Q("0.166 in")))
sketch6.addConstraint(Sketcher.Constraint("DistanceY", 0, 3, 1, 3, Q("0.5 in")))
sketch6.addConstraint(Sketcher.Constraint("DistanceX", 2, 3, 4, 3, Q("0.5 in")))
sketch6.addConstraint(Sketcher.Constraint("DistanceX", -1, 1, 2, 3, Q("0.25 in")))
sketch6.addConstraint(Sketcher.Constraint("DistanceX", 0, 3, 4, 3, Q("3 in")))
sketch6.addConstraint(Sketcher.Constraint("DistanceY", -1, 1, 0, 3, Q("1.3125 in")))
pocket5 = doc.addObject("PartDesign::Pocket", "Pocket004")
body.addObject(pocket5)
pocket5.Profile = sketch6
pocket5.Length = Q("1 in")

sketch7 = doc.addObject("Sketcher::SketchObject", "Sketch006")
body.addObject(sketch7)
sketch7.AttachmentSupport = (doc.XY_Plane, [""])
sketch7.MapMode = "FlatFace"
sketch7.AttachmentOffset = App.Placement(Vector(0, 0, 0.0625 * 25.4), App.Rotation())
sketch7.addGeometry(Part.Circle(Vector(12.7, -46.0375, 0), Vector(0, 0, 1), 2.1082), False)
sketch7.addGeometry(Part.Circle(Vector(-12.7, -2.2788, 0), Vector(0, 0, 1), 2.1082), False)
sketch7.addGeometry(Part.Circle(Vector(25.4, -46.0375, 0), Vector(0, 0, 1), 2.1082), False)
sketch7.addGeometry(Part.Circle(Vector(0, -2.2788, 0), Vector(0, 0, 1), 2.1082), False)
sketch7.addConstraint(Sketcher.Constraint("Equal", 0, 1))
sketch7.addConstraint(Sketcher.Constraint("Equal", 1, 2))
sketch7.addConstraint(Sketcher.Constraint("Equal", 2, 3))
sketch7.addConstraint(Sketcher.Constraint("PointOnObject", 3, 3, -2))
sketch7.addConstraint(Sketcher.Constraint("Horizontal", 0, 3, 2, 3))
sketch7.addConstraint(Sketcher.Constraint("Horizontal", 1, 3, 3, 3))
sketch7.addConstraint(Sketcher.Constraint("Diameter", 0, Q("0.166 in")))
sketch7.addConstraint(Sketcher.Constraint("DistanceX", -1, 1, 2, 3, Q("1 in")))
sketch7.addConstraint(Sketcher.Constraint("DistanceX", 1, 3, 0, 3, Q("1 in")))
sketch7.addConstraint(Sketcher.Constraint("DistanceX", -1, 1, 0, 3, Q("0.5 in")))
sketch7.addConstraint(Sketcher.Constraint("DistanceY", 0, 3, -1, 1, Q("1.8125 in")))
sketch7.addConstraint(Sketcher.Constraint("DistanceY", 1, 3, -1, 1, 2.2788))
pocket6 = doc.addObject("PartDesign::Pocket", "Pocket005")
body.addObject(pocket6)
pocket6.Profile = sketch7
pocket6.Length = Q("1 in")

sketch8 = doc.addObject("Sketcher::SketchObject", "Sketch007")
body.addObject(sketch8)
sketch8.AttachmentSupport = (doc.XY_Plane, [""])
sketch8.MapMode = "FlatFace"
sketch8.AttachmentOffset = App.Placement(Vector(0, 0, 0.0625 * 25.4), App.Rotation())
sketch8.addGeometry(Part.Circle(Vector(-38.1, -2.2788, 0), Vector(0, 0, 1), 2.1082), False)
sketch8.addGeometry(Part.Circle(Vector(-50.8, -2.2788, 0), Vector(0, 0, 1), 2.1082), False)
sketch8.addGeometry(Part.Circle(Vector(38.1, -46.0375, 0), Vector(0, 0, 1), 2.1082), False)
sketch8.addGeometry(Part.Circle(Vector(50.8, -46.0375, 0), Vector(0, 0, 1), 2.1082), False)
sketch8.addGeometry(Part.Circle(Vector(-12.7, -46.0375, 0), Vector(0, 0, 1), 2.1082), False)
sketch8.addGeometry(Part.Circle(Vector(-25.4, -46.0375, 0), Vector(0, 0, 1), 2.1082), False)
sketch8.addGeometry(Part.Circle(Vector(-38.1, -46.0375, 0), Vector(0, 0, 1), 2.1082), False)
sketch8.addGeometry(Part.Circle(Vector(-50.8, -46.0375, 0), Vector(0, 0, 1), 2.1082), False)
sketch8.addConstraint(Sketcher.Constraint("Equal", 0, 1))
sketch8.addConstraint(Sketcher.Constraint("Equal", 1, 2))
sketch8.addConstraint(Sketcher.Constraint("Equal", 2, 3))
sketch8.addConstraint(Sketcher.Constraint("Equal", 3, 4))
sketch8.addConstraint(Sketcher.Constraint("Equal", 4, 5))
sketch8.addConstraint(Sketcher.Constraint("Equal", 5, 6))
sketch8.addConstraint(Sketcher.Constraint("Equal", 6, 7))
sketch8.addConstraint(Sketcher.Constraint("Symmetric", 2, 3, 6, 3, -2))
sketch8.addConstraint(Sketcher.Constraint("Symmetric", 3, 3, 7, 3, -2))
sketch8.addConstraint(Sketcher.Constraint("Horizontal", 0, 3, 1, 3))
sketch8.addConstraint(Sketcher.Constraint("Horizontal", 2, 3, 3, 3))
sketch8.addConstraint(Sketcher.Constraint("Horizontal", 3, 3, 4, 3))
sketch8.addConstraint(Sketcher.Constraint("Horizontal", 4, 3, 5, 3))
sketch8.addConstraint(Sketcher.Constraint("Vertical", 0, 3, 6, 3))
sketch8.addConstraint(Sketcher.Constraint("Vertical", 1, 3, 7, 3))
sketch8.addConstraint(Sketcher.Constraint("Diameter", 0, Q("0.166 in")))
sketch8.addConstraint(Sketcher.Constraint("DistanceX", 4, 3, -1, 1, Q("0.5 in")))
sketch8.addConstraint(Sketcher.Constraint("DistanceX", 1, 3, 0, 3, Q("0.5 in")))
sketch8.addConstraint(Sketcher.Constraint("DistanceX", 5, 3, 4, 3, Q("0.5 in")))
sketch8.addConstraint(Sketcher.Constraint("DistanceX", 0, 3, 5, 3, Q("0.5 in")))
sketch8.addConstraint(Sketcher.Constraint("DistanceY", 2, 3, -1, 1, Q("1.8125 in")))
sketch8.addConstraint(Sketcher.Constraint("DistanceY", 0, 3, -1, 1, 2.2788))
pocket7 = doc.addObject("PartDesign::Pocket", "Pocket006")
body.addObject(pocket7)
pocket7.Profile = sketch8
pocket7.Length = Q("1 in")

sketch9 = doc.addObject("Sketcher::SketchObject", "Sketch008")
body.addObject(sketch9)
sketch9.AttachmentSupport = (doc.XY_Plane, [""])
sketch9.MapMode = "FlatFace"
sketch9.AttachmentOffset = App.Placement(Vector(0, 0, 0.0625 * 25.4), App.Rotation())
sketch9.addGeometry(Part.Circle(Vector(-19.05, 58.7375, 0), Vector(0, 0, 1), 2.1082), False)
sketch9.addGeometry(Part.Circle(Vector(-19.05, 20.6375, 0), Vector(0, 0, 1), 2.1082), False)
sketch9.addGeometry(Part.Circle(Vector(-6.35, 20.6375, 0), Vector(0, 0, 1), 2.1082), False)
sketch9.addGeometry(Part.Circle(Vector(-57.15, -23.0173, 0), Vector(0, 0, 1), 2.1082), False)
sketch9.addConstraint(Sketcher.Constraint("Equal", 0, 1))
sketch9.addConstraint(Sketcher.Constraint("Equal", 1, 2))
sketch9.addConstraint(Sketcher.Constraint("Equal", 2, 3))
sketch9.addConstraint(Sketcher.Constraint("Horizontal", 1, 3, 2, 3))
sketch9.addConstraint(Sketcher.Constraint("Vertical", 0, 3, 1, 3))
sketch9.addConstraint(Sketcher.Constraint("Diameter", 0, Q("0.166 in")))
sketch9.addConstraint(Sketcher.Constraint("DistanceY", 1, 3, 0, 3, Q("1.5 in")))
sketch9.addConstraint(Sketcher.Constraint("DistanceX", 3, 3, 1, 3, Q("1.5 in")))
sketch9.addConstraint(Sketcher.Constraint("DistanceX", 3, 3, 2, 3, Q("2 in")))
sketch9.addConstraint(Sketcher.Constraint("DistanceX", 0, 3, -1, 1, Q("0.75 in")))
sketch9.addConstraint(Sketcher.Constraint("DistanceY", -1, 1, 0, 3, Q("2.3125 in")))
sketch9.addConstraint(Sketcher.Constraint("DistanceY", 3, 3, -1, 1, Q("0.9062 in")))
pocket8 = doc.addObject("PartDesign::Pocket", "Pocket007")
body.addObject(pocket8)
pocket8.Profile = sketch9
pocket8.Length = Q("1 in")
doc.recompute()

fillet = doc.addObject("PartDesign::Fillet", "Fillet")
body.addObject(fillet)
fillet.Base = (pocket8, edges_at(pocket8, [(63.5, -58.737, 0.794), (-63.5, -58.737, 0.794)]))
fillet.Radius = Q("0.125 in")

sketch10 = doc.addObject("Sketcher::SketchObject", "Sketch009")
body.addObject(sketch10)
sketch10.AttachmentSupport = (doc.XY_Plane, [""])
sketch10.MapMode = "FlatFace"
sketch10.AttachmentOffset = App.Placement(Vector(0, 0, 0.0625 * 25.4), App.Rotation())
sketch10.addGeometry(Part.Circle(Vector(-57.15, -23.0173, 0), Vector(0, 0, 1), 2.1082), False)
sketch10.addConstraint(Sketcher.Constraint("Diameter", 0, Q("0.166 in")))
sketch10.addConstraint(Sketcher.Constraint("DistanceX", 0, 3, -1, 1, Q("2.25 in")))
sketch10.addConstraint(Sketcher.Constraint("DistanceY", 0, 3, -1, 1, Q("0.9062 in")))
pad2 = doc.addObject("PartDesign::Pad", "Pad001")
body.addObject(pad2)
pad2.Profile = sketch10
pad2.Length = Q("0.0625 in")
pad2.Reversed = True

doc.recompute()
